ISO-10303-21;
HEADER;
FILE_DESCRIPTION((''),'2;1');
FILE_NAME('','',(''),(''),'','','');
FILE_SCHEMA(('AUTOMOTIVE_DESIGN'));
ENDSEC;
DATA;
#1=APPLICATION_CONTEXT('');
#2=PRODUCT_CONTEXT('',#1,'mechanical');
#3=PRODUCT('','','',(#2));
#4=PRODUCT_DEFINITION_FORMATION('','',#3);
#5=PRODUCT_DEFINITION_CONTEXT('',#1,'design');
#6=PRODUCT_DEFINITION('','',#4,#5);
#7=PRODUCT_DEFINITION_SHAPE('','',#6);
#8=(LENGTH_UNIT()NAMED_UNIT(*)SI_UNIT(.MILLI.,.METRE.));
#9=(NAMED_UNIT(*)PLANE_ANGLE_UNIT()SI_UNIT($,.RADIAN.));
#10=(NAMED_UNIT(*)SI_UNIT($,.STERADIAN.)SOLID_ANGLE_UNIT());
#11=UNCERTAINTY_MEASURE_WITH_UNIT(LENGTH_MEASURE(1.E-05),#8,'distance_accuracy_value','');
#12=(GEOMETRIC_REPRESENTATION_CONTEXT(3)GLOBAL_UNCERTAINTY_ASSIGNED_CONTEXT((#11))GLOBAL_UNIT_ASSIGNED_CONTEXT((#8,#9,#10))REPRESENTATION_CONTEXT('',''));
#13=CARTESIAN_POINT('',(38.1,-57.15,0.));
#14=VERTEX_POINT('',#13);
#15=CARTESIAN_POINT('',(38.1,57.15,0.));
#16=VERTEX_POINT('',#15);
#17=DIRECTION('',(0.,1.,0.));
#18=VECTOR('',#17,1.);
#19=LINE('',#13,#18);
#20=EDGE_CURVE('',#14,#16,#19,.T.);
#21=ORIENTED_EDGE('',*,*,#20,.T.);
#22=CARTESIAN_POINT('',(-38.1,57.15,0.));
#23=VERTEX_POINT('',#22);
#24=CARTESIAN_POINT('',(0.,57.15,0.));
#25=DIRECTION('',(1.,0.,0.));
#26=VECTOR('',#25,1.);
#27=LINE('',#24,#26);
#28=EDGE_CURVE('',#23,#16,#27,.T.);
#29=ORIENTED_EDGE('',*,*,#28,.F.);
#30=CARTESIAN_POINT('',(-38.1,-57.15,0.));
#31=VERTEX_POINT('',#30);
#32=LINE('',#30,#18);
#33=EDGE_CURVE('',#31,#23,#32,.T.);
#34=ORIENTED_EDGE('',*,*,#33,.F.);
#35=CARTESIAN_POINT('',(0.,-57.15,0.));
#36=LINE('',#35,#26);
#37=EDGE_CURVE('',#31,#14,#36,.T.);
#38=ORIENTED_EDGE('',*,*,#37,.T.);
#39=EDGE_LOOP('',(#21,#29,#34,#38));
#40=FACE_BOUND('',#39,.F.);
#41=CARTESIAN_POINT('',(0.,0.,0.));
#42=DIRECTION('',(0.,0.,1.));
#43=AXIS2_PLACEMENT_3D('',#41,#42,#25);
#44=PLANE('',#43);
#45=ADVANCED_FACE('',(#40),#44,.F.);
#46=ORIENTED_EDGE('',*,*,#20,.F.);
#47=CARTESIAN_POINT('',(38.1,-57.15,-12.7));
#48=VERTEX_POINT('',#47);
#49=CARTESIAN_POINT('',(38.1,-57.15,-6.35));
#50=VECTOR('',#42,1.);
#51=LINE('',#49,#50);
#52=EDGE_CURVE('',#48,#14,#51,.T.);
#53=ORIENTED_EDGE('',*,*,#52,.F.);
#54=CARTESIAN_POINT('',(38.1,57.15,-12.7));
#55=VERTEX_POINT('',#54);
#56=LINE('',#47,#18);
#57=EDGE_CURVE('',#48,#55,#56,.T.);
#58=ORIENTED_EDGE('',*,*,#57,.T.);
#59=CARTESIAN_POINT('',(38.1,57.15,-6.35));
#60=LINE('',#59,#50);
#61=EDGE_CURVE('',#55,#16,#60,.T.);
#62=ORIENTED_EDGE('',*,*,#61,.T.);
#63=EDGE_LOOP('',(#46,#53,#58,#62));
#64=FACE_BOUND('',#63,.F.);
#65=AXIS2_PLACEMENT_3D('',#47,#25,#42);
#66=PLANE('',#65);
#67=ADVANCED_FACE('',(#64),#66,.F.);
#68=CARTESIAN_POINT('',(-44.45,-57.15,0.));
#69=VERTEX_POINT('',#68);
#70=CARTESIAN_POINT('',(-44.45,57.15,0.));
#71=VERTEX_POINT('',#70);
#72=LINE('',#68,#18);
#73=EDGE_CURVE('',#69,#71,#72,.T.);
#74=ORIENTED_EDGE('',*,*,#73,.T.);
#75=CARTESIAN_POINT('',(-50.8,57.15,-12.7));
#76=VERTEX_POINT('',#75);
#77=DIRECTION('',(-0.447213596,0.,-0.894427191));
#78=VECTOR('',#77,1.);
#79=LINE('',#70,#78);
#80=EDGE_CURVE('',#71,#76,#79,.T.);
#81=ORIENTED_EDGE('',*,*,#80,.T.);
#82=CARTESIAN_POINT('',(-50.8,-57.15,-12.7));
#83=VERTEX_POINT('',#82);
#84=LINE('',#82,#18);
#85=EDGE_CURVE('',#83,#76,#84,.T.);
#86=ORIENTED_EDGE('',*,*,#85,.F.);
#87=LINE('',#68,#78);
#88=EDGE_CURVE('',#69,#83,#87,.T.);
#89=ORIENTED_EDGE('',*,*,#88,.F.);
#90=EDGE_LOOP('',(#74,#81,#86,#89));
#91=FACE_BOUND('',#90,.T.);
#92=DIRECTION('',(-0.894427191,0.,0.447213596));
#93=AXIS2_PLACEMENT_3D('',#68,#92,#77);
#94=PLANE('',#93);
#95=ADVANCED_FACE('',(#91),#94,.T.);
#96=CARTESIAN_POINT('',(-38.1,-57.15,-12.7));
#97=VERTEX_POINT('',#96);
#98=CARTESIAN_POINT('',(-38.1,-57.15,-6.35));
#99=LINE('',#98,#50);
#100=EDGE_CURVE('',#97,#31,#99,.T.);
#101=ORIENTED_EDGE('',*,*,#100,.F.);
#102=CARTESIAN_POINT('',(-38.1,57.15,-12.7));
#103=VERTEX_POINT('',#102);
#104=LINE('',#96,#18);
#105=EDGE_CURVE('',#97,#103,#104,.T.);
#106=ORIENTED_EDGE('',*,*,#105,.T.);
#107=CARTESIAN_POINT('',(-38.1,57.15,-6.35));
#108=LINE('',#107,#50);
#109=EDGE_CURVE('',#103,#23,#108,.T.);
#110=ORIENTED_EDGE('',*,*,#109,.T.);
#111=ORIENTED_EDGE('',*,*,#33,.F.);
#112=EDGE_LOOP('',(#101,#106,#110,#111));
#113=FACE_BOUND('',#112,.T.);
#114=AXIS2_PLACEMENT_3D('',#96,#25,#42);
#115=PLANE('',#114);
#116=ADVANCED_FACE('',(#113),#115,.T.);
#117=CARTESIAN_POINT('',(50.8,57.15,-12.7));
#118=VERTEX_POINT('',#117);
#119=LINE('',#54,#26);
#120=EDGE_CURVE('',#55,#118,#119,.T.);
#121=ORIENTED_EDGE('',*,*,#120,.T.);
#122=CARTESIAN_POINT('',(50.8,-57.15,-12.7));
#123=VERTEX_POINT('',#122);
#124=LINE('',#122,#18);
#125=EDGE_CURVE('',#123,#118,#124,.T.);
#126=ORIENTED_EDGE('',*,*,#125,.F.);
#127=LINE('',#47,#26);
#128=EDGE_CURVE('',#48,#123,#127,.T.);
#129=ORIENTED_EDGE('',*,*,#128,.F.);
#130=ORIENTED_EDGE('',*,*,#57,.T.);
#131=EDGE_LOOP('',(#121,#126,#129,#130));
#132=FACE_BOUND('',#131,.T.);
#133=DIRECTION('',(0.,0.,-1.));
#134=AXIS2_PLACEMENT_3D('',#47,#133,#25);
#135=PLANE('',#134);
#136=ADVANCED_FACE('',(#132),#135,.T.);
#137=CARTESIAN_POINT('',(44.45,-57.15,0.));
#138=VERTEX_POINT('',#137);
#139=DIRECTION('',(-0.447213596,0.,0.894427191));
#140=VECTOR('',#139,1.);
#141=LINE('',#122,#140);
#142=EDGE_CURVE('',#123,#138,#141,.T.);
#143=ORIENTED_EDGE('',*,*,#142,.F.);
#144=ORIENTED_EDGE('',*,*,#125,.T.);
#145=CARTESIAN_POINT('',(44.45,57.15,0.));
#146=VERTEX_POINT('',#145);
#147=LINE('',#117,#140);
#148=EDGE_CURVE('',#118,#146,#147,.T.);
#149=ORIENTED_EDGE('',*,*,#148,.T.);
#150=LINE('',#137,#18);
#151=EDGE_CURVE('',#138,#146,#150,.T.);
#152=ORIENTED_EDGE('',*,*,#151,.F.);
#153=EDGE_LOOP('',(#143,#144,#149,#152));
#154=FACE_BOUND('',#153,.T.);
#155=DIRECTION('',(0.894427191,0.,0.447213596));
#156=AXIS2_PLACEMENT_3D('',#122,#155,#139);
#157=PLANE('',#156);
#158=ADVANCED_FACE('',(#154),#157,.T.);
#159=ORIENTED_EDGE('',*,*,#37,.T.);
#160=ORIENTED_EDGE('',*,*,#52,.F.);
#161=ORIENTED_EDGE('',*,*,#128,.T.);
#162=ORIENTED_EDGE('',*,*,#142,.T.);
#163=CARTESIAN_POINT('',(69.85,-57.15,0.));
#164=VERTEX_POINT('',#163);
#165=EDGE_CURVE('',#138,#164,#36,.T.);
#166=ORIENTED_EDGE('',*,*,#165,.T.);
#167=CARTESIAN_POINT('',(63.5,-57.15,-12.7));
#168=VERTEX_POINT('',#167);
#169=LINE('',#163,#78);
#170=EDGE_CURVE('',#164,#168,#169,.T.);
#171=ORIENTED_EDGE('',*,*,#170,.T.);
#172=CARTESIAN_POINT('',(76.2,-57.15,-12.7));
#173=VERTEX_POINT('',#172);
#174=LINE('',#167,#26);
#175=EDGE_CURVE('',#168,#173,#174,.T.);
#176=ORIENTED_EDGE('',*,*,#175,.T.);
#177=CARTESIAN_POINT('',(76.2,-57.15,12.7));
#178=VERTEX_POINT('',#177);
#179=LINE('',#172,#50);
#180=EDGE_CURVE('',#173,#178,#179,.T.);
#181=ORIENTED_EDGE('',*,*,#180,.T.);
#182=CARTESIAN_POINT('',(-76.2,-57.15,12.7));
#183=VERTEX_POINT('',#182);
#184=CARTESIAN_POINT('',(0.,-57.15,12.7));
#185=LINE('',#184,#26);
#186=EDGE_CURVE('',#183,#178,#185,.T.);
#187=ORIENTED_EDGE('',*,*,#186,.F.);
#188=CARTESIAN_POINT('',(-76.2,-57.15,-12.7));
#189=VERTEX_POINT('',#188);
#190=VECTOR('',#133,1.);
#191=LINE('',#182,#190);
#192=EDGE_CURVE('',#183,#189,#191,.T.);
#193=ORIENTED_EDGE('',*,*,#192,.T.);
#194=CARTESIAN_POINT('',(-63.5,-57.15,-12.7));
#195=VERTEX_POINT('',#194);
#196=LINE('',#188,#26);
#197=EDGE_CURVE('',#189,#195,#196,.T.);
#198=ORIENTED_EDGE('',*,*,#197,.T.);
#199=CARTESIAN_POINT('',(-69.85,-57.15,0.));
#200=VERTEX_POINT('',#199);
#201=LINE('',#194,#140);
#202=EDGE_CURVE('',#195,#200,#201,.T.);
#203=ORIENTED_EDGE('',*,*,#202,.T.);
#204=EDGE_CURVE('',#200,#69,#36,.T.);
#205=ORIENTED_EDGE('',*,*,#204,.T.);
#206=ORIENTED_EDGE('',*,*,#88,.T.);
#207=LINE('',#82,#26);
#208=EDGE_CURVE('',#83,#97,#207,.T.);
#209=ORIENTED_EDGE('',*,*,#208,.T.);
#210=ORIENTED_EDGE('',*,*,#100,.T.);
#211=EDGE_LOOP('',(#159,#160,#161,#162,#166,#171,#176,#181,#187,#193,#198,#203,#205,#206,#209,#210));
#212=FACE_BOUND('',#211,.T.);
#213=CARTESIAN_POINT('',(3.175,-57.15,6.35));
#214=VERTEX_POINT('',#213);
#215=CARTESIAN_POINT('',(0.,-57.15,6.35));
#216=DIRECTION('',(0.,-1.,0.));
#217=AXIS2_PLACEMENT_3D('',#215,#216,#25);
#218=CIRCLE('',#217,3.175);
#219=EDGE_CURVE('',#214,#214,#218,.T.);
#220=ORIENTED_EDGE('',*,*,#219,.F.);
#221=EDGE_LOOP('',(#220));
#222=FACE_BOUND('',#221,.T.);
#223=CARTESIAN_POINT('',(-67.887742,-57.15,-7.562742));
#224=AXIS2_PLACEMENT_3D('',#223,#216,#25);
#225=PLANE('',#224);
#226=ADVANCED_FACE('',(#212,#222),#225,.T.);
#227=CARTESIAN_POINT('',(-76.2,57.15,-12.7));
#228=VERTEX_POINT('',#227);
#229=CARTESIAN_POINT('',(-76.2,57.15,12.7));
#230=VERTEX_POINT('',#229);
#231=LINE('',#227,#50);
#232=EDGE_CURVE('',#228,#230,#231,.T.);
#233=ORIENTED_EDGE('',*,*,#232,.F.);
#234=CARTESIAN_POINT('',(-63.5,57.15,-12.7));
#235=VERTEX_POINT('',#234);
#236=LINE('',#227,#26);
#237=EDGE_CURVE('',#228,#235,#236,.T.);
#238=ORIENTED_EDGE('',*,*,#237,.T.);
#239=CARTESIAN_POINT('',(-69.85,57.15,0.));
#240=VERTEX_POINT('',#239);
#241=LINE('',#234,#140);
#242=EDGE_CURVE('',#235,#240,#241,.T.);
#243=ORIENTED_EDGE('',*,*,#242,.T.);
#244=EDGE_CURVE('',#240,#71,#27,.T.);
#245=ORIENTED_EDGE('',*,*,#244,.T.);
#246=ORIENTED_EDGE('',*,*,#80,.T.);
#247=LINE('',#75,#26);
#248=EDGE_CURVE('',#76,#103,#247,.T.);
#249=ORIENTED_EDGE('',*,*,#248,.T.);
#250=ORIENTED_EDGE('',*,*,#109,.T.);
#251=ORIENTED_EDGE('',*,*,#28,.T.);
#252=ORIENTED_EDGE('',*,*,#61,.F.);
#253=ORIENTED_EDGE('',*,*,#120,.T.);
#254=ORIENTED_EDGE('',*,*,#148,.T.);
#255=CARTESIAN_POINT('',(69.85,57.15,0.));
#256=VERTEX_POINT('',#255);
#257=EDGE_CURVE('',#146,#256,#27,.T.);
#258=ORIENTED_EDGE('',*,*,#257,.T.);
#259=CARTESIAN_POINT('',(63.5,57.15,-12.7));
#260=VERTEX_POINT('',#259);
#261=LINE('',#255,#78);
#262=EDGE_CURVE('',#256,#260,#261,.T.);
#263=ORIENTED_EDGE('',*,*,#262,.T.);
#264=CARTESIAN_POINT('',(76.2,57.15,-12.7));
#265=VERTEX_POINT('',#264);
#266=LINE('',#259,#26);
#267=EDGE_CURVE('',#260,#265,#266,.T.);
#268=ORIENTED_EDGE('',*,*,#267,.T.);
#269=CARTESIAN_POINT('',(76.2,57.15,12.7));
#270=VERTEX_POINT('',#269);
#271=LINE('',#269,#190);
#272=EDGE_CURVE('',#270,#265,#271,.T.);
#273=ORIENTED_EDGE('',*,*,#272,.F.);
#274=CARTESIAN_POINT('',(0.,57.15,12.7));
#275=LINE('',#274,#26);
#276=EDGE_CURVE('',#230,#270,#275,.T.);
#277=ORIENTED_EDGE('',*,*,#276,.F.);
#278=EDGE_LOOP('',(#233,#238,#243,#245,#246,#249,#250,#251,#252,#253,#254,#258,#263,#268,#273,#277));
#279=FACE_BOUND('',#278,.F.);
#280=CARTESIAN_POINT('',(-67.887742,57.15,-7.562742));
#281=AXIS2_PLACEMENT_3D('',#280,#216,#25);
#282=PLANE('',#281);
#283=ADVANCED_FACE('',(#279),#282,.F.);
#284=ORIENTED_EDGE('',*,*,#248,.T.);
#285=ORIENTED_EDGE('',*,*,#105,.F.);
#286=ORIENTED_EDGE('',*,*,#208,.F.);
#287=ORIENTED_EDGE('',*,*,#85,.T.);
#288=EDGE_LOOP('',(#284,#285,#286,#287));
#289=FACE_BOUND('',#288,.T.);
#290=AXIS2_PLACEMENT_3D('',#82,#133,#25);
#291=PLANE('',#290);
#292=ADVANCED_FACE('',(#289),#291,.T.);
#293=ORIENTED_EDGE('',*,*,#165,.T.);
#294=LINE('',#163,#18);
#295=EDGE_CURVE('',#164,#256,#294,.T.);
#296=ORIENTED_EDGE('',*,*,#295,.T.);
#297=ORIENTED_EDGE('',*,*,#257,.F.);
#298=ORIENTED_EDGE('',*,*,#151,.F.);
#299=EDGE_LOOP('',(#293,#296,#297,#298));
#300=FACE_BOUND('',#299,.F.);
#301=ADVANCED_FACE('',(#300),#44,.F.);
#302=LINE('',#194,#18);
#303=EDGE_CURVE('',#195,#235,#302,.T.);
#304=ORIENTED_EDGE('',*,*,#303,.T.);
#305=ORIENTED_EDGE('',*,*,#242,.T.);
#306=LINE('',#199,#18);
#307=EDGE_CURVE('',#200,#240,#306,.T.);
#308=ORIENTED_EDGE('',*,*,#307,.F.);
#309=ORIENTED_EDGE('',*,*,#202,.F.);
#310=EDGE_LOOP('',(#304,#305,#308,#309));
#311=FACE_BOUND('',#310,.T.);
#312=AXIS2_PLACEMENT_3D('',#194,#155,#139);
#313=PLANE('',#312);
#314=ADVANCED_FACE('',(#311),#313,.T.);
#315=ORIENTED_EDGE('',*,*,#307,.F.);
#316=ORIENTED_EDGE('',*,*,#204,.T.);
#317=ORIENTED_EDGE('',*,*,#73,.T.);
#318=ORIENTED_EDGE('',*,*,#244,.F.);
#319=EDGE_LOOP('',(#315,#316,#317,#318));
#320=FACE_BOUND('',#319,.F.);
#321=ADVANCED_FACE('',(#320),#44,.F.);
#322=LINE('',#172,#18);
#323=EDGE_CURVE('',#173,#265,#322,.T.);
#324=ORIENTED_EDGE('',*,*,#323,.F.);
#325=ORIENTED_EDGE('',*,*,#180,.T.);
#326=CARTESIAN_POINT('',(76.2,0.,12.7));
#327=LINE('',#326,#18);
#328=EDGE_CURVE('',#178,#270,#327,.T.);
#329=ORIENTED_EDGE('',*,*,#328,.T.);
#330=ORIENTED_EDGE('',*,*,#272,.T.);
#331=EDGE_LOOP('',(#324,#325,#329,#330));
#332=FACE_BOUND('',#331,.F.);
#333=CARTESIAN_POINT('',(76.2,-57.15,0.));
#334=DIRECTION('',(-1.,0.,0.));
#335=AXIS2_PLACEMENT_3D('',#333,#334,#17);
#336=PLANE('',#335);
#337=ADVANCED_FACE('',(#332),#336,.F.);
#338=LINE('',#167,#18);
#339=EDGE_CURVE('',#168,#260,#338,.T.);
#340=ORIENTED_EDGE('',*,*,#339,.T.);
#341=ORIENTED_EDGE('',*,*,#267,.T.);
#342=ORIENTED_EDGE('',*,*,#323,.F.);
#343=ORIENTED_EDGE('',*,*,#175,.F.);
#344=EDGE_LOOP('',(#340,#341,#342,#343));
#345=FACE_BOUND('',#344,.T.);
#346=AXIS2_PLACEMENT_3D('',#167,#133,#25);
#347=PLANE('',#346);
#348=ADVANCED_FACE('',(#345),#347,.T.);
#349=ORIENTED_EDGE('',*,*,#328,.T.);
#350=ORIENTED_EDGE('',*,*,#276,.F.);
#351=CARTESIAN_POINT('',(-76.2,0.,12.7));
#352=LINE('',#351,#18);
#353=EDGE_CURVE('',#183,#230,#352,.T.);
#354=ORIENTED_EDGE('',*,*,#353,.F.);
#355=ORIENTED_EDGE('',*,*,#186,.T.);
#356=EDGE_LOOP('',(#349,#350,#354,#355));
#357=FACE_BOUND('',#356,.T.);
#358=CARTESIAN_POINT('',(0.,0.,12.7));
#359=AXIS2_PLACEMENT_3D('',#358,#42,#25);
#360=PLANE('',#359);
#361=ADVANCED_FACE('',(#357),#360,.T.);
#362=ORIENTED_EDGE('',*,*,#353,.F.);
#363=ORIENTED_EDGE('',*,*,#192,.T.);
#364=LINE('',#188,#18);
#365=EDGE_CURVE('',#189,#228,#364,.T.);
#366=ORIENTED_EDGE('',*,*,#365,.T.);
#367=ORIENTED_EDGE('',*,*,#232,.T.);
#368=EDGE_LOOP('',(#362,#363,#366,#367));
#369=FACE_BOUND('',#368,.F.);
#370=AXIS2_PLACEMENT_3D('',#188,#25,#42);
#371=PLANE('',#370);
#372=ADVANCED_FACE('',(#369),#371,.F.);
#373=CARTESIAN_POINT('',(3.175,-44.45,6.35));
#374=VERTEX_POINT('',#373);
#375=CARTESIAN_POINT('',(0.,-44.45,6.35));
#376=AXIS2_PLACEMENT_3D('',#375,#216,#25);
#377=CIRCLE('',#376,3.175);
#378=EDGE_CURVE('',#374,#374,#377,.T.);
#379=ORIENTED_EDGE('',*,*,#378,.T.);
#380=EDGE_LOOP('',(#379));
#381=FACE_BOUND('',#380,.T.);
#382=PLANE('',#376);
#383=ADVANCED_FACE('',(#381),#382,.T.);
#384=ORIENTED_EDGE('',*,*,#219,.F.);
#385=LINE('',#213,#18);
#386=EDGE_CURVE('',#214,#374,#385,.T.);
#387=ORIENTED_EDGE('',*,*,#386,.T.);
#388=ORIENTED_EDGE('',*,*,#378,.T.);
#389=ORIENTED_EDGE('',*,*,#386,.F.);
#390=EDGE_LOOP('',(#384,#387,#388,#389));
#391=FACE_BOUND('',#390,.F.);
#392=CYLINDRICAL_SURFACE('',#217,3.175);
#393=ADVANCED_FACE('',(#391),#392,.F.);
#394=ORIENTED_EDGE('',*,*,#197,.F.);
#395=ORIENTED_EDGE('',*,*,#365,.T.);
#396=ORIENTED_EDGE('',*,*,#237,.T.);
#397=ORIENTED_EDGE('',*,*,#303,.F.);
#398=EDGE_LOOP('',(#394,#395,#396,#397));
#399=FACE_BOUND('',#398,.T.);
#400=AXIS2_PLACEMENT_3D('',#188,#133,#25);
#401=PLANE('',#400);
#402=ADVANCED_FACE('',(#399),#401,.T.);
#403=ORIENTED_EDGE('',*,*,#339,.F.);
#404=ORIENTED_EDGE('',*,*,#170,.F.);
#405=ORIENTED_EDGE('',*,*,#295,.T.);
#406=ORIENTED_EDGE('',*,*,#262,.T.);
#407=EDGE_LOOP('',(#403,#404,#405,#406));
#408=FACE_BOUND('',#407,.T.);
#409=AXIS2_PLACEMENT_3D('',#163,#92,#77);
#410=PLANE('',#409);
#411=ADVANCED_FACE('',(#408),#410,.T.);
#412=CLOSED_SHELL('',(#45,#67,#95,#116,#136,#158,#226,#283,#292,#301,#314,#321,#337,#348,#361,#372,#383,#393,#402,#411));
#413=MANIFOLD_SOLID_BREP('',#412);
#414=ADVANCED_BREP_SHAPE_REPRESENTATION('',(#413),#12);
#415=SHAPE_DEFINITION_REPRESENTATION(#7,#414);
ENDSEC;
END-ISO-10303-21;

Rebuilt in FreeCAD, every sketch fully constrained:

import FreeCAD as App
import Part
import Sketcher
from FreeCAD import Vector
Q = App.Units.Quantity

doc = App.newDocument("Part")
body = doc.addObject("PartDesign::Body", "Body")

# Sketch on XY plane
sketch1 = doc.addObject("Sketcher::SketchObject", "Sketch")
body.addObject(sketch1)
sketch1.AttachmentSupport = (doc.XY_Plane, [""])
sketch1.MapMode = "FlatFace"
sketch1.addGeometry(Part.LineSegment(Vector(-76, 57, 0), Vector(-76, -57, 0)), False)
sketch1.addGeometry(Part.LineSegment(Vector(-76, -57, 0), Vector(76, -57, 0)), False)
sketch1.addGeometry(Part.LineSegment(Vector(76, -57, 0), Vector(76, 57, 0)), False)
sketch1.addGeometry(Part.LineSegment(Vector(76, 57, 0), Vector(-76, 57, 0)), False)
sketch1.addConstraint(Sketcher.Constraint("Coincident", 0, 2, 1, 1))
sketch1.addConstraint(Sketcher.Constraint("Coincident", 1, 2, 2, 1))
sketch1.addConstraint(Sketcher.Constraint("Coincident", 2, 2, 3, 1))
sketch1.addConstraint(Sketcher.Constraint("Coincident", 3, 2, 0, 1))
sketch1.addConstraint(Sketcher.Constraint("Vertical", 0))
sketch1.addConstraint(Sketcher.Constraint("Horizontal", 1))
sketch1.addConstraint(Sketcher.Constraint("Vertical", 2))
sketch1.addConstraint(Sketcher.Constraint("Horizontal", 3))
sketch1.addConstraint(Sketcher.Constraint("Symmetric", 0, 2, 2, 2, -1, 1))
sketch1.addConstraint(Sketcher.Constraint("DistanceX", 1, 1, 1, 2, Q("6 in")))
sketch1.addConstraint(Sketcher.Constraint("DistanceY", 0, 2, 0, 1, Q("4.5 in")))
pad1 = doc.addObject("PartDesign::Pad", "Pad")
body.addObject(pad1)
pad1.Profile = sketch1
pad1.Length = Q("0.5 in")

# Sketch on XZ plane
sketch2 = doc.addObject("Sketcher::SketchObject", "Sketch001")
body.addObject(sketch2)
sketch2.AttachmentSupport = (doc.XZ_Plane, [""])
sketch2.MapMode = "FlatFace"
sketch2.AttachmentOffset = App.Placement(Vector(0, 0, 2.25 * 25.4), App.Rotation())
sketch2.addGeometry(Part.LineSegment(Vector(-64, -13, 0), Vector(-70, 0, 0)), False)
sketch2.addGeometry(Part.LineSegment(Vector(-70, 0, 0), Vector(-76, 0, 0)), False)
sketch2.addGeometry(Part.LineSegment(Vector(-76, 0, 0), Vector(-76, -13, 0)), False)
sketch2.addGeometry(Part.LineSegment(Vector(-76, -13, 0), Vector(-64, -13, 0)), False)
sketch2.addGeometry(Part.LineSegment(Vector(-44, 0, 0), Vector(-51, -13, 0)), False)
sketch2.addGeometry(Part.LineSegment(Vector(-51, -13, 0), Vector(-38, -13, 0)), False)
sketch2.addGeometry(Part.LineSegment(Vector(-38, -13, 0), Vector(-38, 0, 0)), False)
sketch2.addGeometry(Part.LineSegment(Vector(-38, 0, 0), Vector(-44, 0, 0)), False)
sketch2.addGeometry(Part.LineSegment(Vector(38, 0, 0), Vector(38, -13, 0)), False)
sketch2.addGeometry(Part.LineSegment(Vector(38, -13, 0), Vector(51, -13, 0)), False)
sketch2.addGeometry(Part.LineSegment(Vector(51, -13, 0), Vector(44, 0, 0)), False)
sketch2.addGeometry(Part.LineSegment(Vector(44, 0, 0), Vector(38, 0, 0)), False)
sketch2.addGeometry(Part.LineSegment(Vector(70, 0, 0), Vector(64, -13, 0)), False)
sketch2.addGeometry(Part.LineSegment(Vector(64, -13, 0), Vector(76, -13, 0)), False)
sketch2.addGeometry(Part.LineSegment(Vector(76, -13, 0), Vector(76, 0, 0)), False)
sketch2.addGeometry(Part.LineSegment(Vector(76, 0, 0), Vector(70, 0, 0)), False)
sketch2.addConstraint(Sketcher.Constraint("Coincident", 0, 2, 1, 1))
sketch2.addConstraint(Sketcher.Constraint("Coincident", 1, 2, 2, 1))
sketch2.addConstraint(Sketcher.Constraint("Coincident", 2, 2, 3, 1))
sketch2.addConstraint(Sketcher.Constraint("Coincident", 3, 2, 0, 1))
sketch2.addConstraint(Sketcher.Constraint("Coincident", 4, 2, 5, 1))
sketch2.addConstraint(Sketcher.Constraint("Coincident", 5, 2, 6, 1))
sketch2.addConstraint(Sketcher.Constraint("Coincident", 6, 2, 7, 1))
sketch2.addConstraint(Sketcher.Constraint("Coincident", 7, 2, 4, 1))
sketch2.addConstraint(Sketcher.Constraint("Coincident", 8, 2, 9, 1))
sketch2.addConstraint(Sketcher.Constraint("Coincident", 9, 2, 10, 1))
sketch2.addConstraint(Sketcher.Constraint("Coincident", 10, 2, 11, 1))
sketch2.addConstraint(Sketcher.Constraint("Coincident", 11, 2, 8, 1))
sketch2.addConstraint(Sketcher.Constraint("Coincident", 12, 2, 13, 1))
sketch2.addConstraint(Sketcher.Constraint("Coincident", 13, 2, 14, 1))
sketch2.addConstraint(Sketcher.Constraint("Coincident", 14, 2, 15, 1))
sketch2.addConstraint(Sketcher.Constraint("Coincident", 15, 2, 12, 1))
sketch2.addConstraint(Sketcher.Constraint("Horizontal", 1))
sketch2.addConstraint(Sketcher.Constraint("Vertical", 2))
sketch2.addConstraint(Sketcher.Constraint("Horizontal", 3))
sketch2.addConstraint(Sketcher.Constraint("Horizontal", 5))
sketch2.addConstraint(Sketcher.Constraint("Vertical", 6))
sketch2.addConstraint(Sketcher.Constraint("Horizontal", 7))
sketch2.addConstraint(Sketcher.Constraint("Vertical", 8))
sketch2.addConstraint(Sketcher.Constraint("Horizontal", 9))
sketch2.addConstraint(Sketcher.Constraint("Horizontal", 11))
sketch2.addConstraint(Sketcher.Constraint("Horizontal", 13))
sketch2.addConstraint(Sketcher.Constraint("Vertical", 14))
sketch2.addConstraint(Sketcher.Constraint("Horizontal", 15))
sketch2.addConstraint(Sketcher.Constraint("Symmetric", 7, 2, 10, 2, -1, 1))
sketch2.addConstraint(Sketcher.Constraint("Symmetric", 1, 2, 14, 2, -1, 1))
sketch2.addConstraint(Sketcher.Constraint("Symmetric", 5, 2, 8, 2, -2))
sketch2.addConstraint(Sketcher.Constraint("Symmetric", 3, 2, 12, 2, -2))
sketch2.addConstraint(Sketcher.Constraint("Symmetric", 0, 2, 15, 2, -2))
sketch2.addConstraint(Sketcher.Constraint("PointOnObject", 6, 2, -1))
sketch2.addConstraint(Sketcher.Constraint("Parallel", 0, 10))
sketch2.addConstraint(Sketcher.Constraint("Parallel", 4, 12))
sketch2.addConstraint(Sketcher.Constraint("Horizontal", 3, 2, 4, 2))
sketch2.addConstraint(Sketcher.Constraint("Equal", 3, 5))
sketch2.addConstraint(Sketcher.Constraint("Equal", 13, 2))
sketch2.addConstraint(Sketcher.Constraint("DistanceX", 3, 1, 3, 2, Q("0.5 in")))
sketch2.addConstraint(Sketcher.Constraint("DistanceX", 1, 2, -1, 1, Q("3 in")))
sketch2.addConstraint(Sketcher.Constraint("DistanceX", 4, 2, -1, 1, Q("2 in")))
sketch2.addConstraint(Sketcher.Constraint("DistanceX", 0, 2, 7, 2, Q("1 in")))
pad2 = doc.addObject("PartDesign::Pad", "Pad001")
body.addObject(pad2)
pad2.Profile = sketch2
pad2.Length = Q("4.5 in")
pad2.Reversed = True

# Sketch on XZ plane
sketch3 = doc.addObject("Sketcher::SketchObject", "Sketch002")
body.addObject(sketch3)
sketch3.AttachmentSupport = (doc.XZ_Plane, [""])
sketch3.MapMode = "FlatFace"
sketch3.AttachmentOffset = App.Placement(Vector(0, 0, 2.25 * 25.4), App.Rotation())
sketch3.addGeometry(Part.Circle(Vector(0, 6.3, 0), Vector(0, 0, 1), 3.2), False)
sketch3.addConstraint(Sketcher.Constraint("PointOnObject", 0, 3, -2))
sketch3.addConstraint(Sketcher.Constraint("Diameter", 0, Q("0.25 in")))
sketch3.addConstraint(Sketcher.Constraint("DistanceY", -1, 1, 0, 3, Q("0.25 in")))
pocket1 = doc.addObject("PartDesign::Pocket", "Pocket")
body.addObject(pocket1)
pocket1.Profile = sketch3
pocket1.Length = Q("0.5 in")

doc.recompute()
